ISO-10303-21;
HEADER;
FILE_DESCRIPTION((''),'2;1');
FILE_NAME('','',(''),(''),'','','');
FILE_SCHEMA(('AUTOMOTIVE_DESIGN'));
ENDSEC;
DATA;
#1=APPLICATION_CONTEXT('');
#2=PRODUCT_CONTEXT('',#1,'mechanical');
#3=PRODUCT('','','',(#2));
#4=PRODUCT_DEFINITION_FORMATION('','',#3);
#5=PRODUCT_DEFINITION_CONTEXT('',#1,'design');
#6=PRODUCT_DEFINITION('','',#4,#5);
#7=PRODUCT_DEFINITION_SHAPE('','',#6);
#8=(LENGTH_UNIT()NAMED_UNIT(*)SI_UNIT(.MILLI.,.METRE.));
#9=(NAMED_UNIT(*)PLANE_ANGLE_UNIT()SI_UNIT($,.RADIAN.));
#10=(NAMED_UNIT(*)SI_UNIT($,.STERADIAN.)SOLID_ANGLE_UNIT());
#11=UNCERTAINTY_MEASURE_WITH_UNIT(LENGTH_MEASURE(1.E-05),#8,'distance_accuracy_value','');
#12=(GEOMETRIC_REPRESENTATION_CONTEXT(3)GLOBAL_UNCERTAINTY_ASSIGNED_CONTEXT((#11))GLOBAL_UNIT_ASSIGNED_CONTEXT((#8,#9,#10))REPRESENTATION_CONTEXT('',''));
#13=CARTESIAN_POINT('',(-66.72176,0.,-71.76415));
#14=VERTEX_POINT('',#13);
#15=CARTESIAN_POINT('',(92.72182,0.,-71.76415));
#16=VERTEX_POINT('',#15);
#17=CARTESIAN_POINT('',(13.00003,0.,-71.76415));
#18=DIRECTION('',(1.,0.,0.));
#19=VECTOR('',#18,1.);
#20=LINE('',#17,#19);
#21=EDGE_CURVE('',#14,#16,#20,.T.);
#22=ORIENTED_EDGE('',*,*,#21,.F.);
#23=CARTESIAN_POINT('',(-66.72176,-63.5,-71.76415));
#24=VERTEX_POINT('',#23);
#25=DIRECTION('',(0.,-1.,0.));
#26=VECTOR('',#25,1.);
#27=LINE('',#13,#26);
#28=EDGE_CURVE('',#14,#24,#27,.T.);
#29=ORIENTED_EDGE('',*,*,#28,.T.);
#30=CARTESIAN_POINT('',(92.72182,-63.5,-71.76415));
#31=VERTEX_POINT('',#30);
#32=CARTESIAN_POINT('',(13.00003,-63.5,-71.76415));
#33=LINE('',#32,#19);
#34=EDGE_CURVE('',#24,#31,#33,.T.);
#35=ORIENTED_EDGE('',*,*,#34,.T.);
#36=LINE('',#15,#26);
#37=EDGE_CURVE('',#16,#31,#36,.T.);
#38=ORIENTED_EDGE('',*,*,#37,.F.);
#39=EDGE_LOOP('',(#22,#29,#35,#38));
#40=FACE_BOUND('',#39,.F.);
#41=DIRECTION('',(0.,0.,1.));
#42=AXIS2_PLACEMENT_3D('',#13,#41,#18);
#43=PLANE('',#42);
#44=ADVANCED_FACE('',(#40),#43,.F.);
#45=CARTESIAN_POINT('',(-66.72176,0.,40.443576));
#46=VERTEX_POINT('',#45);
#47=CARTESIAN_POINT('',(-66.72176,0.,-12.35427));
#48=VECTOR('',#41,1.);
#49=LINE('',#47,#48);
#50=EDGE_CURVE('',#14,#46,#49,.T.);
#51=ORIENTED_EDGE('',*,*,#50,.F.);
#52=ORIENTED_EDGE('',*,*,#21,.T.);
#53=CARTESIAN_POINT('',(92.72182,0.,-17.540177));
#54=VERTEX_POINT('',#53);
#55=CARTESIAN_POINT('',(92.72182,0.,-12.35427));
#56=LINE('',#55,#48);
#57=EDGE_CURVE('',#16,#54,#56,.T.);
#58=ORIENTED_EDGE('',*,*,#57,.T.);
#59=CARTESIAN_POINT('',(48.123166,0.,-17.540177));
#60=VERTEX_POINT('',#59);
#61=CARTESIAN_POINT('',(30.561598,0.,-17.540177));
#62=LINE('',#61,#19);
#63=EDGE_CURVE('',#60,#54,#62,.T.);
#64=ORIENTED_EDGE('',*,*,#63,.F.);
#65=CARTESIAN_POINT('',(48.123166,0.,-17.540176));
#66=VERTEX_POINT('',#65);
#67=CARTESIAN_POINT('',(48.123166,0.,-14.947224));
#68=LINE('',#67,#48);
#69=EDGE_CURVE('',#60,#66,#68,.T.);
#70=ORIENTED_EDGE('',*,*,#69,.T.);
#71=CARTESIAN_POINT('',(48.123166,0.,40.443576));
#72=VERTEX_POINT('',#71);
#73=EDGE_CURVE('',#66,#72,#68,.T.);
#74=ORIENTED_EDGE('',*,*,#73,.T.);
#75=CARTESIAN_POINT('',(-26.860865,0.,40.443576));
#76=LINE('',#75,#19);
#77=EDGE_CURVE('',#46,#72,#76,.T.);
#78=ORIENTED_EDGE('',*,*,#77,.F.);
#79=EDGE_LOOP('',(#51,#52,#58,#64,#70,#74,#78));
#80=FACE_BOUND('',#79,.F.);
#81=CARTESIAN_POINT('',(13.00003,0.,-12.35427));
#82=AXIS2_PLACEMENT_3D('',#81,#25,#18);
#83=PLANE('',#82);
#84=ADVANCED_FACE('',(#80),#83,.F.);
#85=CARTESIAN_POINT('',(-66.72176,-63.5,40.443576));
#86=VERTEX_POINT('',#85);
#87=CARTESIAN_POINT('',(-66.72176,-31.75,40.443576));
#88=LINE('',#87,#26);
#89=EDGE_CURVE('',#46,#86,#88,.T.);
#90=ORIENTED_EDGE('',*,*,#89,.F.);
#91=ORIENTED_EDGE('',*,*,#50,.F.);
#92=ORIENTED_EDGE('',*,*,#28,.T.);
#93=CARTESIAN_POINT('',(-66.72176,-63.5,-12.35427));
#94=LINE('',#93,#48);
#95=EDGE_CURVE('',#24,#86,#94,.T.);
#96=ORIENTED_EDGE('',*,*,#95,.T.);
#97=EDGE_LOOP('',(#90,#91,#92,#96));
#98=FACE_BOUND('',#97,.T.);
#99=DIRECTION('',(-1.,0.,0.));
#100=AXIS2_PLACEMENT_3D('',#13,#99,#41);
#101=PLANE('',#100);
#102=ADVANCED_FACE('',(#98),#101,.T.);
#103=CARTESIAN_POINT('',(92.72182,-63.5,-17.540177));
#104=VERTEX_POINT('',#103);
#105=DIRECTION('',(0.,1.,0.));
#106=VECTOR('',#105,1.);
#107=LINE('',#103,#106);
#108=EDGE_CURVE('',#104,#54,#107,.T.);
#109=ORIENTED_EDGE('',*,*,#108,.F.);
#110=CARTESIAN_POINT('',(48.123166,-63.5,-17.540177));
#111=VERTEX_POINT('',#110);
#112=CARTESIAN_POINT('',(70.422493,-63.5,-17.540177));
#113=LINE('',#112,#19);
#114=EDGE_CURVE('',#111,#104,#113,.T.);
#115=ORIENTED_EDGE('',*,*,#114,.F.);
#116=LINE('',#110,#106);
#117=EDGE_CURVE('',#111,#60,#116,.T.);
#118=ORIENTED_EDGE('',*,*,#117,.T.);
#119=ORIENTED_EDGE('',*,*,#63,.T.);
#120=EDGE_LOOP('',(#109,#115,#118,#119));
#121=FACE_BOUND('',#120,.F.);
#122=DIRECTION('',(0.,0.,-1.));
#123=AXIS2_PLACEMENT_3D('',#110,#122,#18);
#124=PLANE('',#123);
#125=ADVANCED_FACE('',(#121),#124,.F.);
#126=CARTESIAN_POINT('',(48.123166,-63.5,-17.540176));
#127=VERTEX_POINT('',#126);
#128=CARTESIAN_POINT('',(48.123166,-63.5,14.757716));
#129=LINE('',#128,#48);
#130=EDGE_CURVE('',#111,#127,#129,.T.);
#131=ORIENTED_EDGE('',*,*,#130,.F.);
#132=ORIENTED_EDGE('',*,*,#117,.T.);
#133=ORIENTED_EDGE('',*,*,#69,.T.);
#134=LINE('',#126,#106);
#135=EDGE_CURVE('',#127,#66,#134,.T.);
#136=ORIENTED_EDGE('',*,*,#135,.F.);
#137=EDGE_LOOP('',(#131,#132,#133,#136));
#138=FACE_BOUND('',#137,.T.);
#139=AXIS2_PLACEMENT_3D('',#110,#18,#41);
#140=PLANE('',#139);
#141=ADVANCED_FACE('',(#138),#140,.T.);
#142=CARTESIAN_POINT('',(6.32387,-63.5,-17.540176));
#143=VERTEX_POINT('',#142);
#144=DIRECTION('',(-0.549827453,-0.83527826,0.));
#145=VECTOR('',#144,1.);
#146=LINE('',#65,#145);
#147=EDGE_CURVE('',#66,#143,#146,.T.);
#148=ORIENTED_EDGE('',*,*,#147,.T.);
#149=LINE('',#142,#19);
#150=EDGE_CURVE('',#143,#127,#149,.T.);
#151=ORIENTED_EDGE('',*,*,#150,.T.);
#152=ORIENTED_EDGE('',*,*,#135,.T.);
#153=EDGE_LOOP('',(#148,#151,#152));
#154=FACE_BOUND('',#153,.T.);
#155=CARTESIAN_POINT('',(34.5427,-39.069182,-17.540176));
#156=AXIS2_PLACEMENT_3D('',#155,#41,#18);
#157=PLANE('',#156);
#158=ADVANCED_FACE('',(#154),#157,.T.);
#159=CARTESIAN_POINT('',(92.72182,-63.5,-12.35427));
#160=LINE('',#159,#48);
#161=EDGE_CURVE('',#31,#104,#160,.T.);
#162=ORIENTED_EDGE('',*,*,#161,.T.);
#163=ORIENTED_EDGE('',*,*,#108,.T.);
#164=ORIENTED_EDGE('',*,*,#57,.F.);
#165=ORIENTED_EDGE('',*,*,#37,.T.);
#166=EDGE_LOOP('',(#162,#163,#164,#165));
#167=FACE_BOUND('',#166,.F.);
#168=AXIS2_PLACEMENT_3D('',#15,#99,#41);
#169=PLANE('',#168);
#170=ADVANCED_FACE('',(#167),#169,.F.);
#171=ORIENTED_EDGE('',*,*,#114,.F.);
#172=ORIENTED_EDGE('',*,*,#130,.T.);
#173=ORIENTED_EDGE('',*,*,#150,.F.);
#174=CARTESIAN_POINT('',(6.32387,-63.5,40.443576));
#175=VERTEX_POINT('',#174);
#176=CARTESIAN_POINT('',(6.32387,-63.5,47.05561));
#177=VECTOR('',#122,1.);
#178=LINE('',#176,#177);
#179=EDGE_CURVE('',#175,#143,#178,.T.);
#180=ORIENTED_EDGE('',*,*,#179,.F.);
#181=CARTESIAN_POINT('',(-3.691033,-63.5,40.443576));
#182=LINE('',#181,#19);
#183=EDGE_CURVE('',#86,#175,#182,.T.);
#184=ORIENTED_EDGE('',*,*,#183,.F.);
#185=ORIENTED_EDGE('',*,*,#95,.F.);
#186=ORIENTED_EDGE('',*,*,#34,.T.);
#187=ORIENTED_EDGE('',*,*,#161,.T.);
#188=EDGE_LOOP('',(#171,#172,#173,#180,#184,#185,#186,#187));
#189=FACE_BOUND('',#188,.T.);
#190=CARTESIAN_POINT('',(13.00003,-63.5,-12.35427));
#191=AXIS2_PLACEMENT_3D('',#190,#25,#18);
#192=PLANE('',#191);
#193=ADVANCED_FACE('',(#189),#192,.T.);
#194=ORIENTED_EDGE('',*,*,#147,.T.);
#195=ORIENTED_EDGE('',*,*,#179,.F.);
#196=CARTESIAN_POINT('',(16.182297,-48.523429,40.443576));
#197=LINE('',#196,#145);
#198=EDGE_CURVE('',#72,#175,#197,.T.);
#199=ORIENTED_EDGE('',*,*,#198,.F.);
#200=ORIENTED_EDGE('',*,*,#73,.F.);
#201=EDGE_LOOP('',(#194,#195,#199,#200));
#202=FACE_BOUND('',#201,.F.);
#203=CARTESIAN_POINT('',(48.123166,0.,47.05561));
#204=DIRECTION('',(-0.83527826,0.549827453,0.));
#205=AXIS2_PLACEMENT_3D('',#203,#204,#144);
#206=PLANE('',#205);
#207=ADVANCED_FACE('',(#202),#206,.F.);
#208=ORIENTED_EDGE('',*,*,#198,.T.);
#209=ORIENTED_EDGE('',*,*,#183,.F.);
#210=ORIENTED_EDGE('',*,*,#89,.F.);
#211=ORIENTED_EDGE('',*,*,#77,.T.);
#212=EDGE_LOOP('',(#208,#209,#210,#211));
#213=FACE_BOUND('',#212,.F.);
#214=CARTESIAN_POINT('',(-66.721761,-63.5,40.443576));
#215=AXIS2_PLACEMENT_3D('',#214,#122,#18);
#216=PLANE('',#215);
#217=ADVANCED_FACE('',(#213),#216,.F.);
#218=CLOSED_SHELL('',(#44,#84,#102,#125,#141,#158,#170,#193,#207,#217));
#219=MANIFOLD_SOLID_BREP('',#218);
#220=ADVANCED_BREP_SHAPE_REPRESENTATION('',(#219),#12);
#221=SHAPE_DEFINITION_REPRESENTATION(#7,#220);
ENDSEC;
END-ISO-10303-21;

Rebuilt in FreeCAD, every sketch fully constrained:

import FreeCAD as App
import Part
import Sketcher

V = App.Vector
Q = App.Units.Quantity

doc = App.newDocument("Part")
body = doc.addObject("PartDesign::Body", "Body")

# Sketch on XZ plane
sketch1 = doc.addObject("Sketcher::SketchObject", "Sketch")
body.addObject(sketch1)
sketch1.AttachmentSupport = (doc.XZ_Plane, [""])
sketch1.MapMode = "FlatFace"
sketch1.addGeometry(Part.LineSegment(V(-67, 47, 0), V(-67, -72, 0)), False)
sketch1.addGeometry(Part.LineSegment(V(-67, -72, 0), V(93, -72, 0)), False)
sketch1.addGeometry(Part.LineSegment(V(93, -72, 0), V(93, 47, 0)), False)
sketch1.addGeometry(Part.LineSegment(V(93, 47, 0), V(-67, 47, 0)), False)
sketch1.addConstraint(Sketcher.Constraint("Coincident", 0, 2, 1, 1))
sketch1.addConstraint(Sketcher.Constraint("Coincident", 1, 2, 2, 1))
sketch1.addConstraint(Sketcher.Constraint("Coincident", 2, 2, 3, 1))
sketch1.addConstraint(Sketcher.Constraint("Coincident", 3, 2, 0, 1))
sketch1.addConstraint(Sketcher.Constraint("Vertical", 0))
sketch1.addConstraint(Sketcher.Constraint("Horizontal", 1))
sketch1.addConstraint(Sketcher.Constraint("Vertical", 2))
sketch1.addConstraint(Sketcher.Constraint("Horizontal", 3))
sketch1.addConstraint(Sketcher.Constraint("DistanceX", 1, 1, 1, 2, 159.44358))
sketch1.addConstraint(Sketcher.Constraint("DistanceY", 0, 2, 0, 1, 118.819759))
sketch1.addConstraint(Sketcher.Constraint("DistanceX", 0, 2, -1, 1, 66.72176))
sketch1.addConstraint(Sketcher.Constraint("DistanceY", 0, 2, -1, 1, 71.76415))
pad1 = doc.addObject("PartDesign::Pad", "Pad")
body.addObject(pad1)
pad1.Profile = sketch1
pad1.Length = Q("2.5 in")

# Sketch on XZ plane
sketch2 = doc.addObject("Sketcher::SketchObject", "Sketch001")
body.addObject(sketch2)
sketch2.AttachmentSupport = (doc.XZ_Plane, [""])
sketch2.MapMode = "FlatFace"
sketch2.AttachmentOffset = App.Placement(V(0, 0, 2.5 * 25.4), App.Rotation())
sketch2.addGeometry(Part.LineSegment(V(48, 47, 0), V(48, -18, 0)), False)
sketch2.addGeometry(Part.LineSegment(V(48, -18, 0), V(93, -18, 0)), False)
sketch2.addGeometry(Part.LineSegment(V(93, -18, 0), V(93, 47, 0)), False)
sketch2.addGeometry(Part.LineSegment(V(93, 47, 0), V(48, 47, 0)), False)
sketch2.addConstraint(Sketcher.Constraint("Coincident", 0, 2, 1, 1))
sketch2.addConstraint(Sketcher.Constraint("Coincident", 1, 2, 2, 1))
sketch2.addConstraint(Sketcher.Constraint("Coincident", 2, 2, 3, 1))
sketch2.addConstraint(Sketcher.Constraint("Coincident", 3, 2, 0, 1))
sketch2.addConstraint(Sketcher.Constraint("Vertical", 0))
sketch2.addConstraint(Sketcher.Constraint("Horizontal", 1))
sketch2.addConstraint(Sketcher.Constraint("Vertical", 2))
sketch2.addConstraint(Sketcher.Constraint("Horizontal", 3))
sketch2.addConstraint(Sketcher.Constraint("DistanceX", 1, 1, 1, 2, 44.598654))
sketch2.addConstraint(Sketcher.Constraint("DistanceY", 0, 2, 0, 1, 64.595787))
sketch2.addConstraint(Sketcher.Constraint("DistanceX", -1, 1, 1, 2, 92.72182))
sketch2.addConstraint(Sketcher.Constraint("DistanceY", -1, 1, 2, 2, 47.05561))
pocket1 = doc.addObject("PartDesign::Pocket", "Pocket")
body.addObject(pocket1)
pocket1.Profile = sketch2
pocket1.Length = Q("2.63 in")

# Sketch on XY plane
sketch3 = doc.addObject("Sketcher::SketchObject", "Sketch002")
body.addObject(sketch3)
sketch3.AttachmentSupport = (doc.XY_Plane, [""])
sketch3.MapMode = "FlatFace"
sketch3.AttachmentOffset = App.Placement(V(0, 0, 47.05561), App.Rotation())
sketch3.addGeometry(Part.LineSegment(V(48, -64, 0), V(48, 0, 0)), False)
sketch3.addGeometry(Part.LineSegment(V(48, 0, 0), V(6, -64, 0)), False)
sketch3.addGeometry(Part.LineSegment(V(6, -64, 0), V(48, -64, 0)), False)
sketch3.addConstraint(Sketcher.Constraint("Coincident", 0, 2, 1, 1))
sketch3.addConstraint(Sketcher.Constraint("Coincident", 1, 2, 2, 1))
sketch3.addConstraint(Sketcher.Constraint("Coincident", 2, 2, 0, 1))
sketch3.addConstraint(Sketcher.Constraint("Vertical", 0))
sketch3.addConstraint(Sketcher.Constraint("Horizontal", 2))
sketch3.addConstraint(Sketcher.Constraint("PointOnObject", 0, 2, -1))
sketch3.addConstraint(Sketcher.Constraint("DistanceY", 0, 1, 0, 2, Q("2.5 in")))
sketch3.addConstraint(Sketcher.Constraint("Distance", 1, 76.02257))
sketch3.addConstraint(Sketcher.Constraint("DistanceX", -1, 1, 1, 2, 6.32387))
pocket2 = doc.addObject("PartDesign::Pocket", "Pocket001")
body.addObject(pocket2)
pocket2.Profile = sketch3
pocket2.Length = 64.595786

# Sketch on XZ plane
sketch4 = doc.addObject("Sketcher::SketchObject", "Sketch003")
body.addObject(sketch4)
sketch4.AttachmentSupport = (doc.XZ_Plane, [""])
sketch4.MapMode = "FlatFace"
sketch4.AttachmentOffset = App.Placement(V(0, 0, 2.5 * 25.4), App.Rotation())
sketch4.addGeometry(Part.LineSegment(V(-67, 47, 0), V(-67, 40, 0)), False)
sketch4.addGeometry(Part.LineSegment(V(-67, 40, 0), V(59, 40, 0)), False)
sketch4.addGeometry(Part.LineSegment(V(59, 40, 0), V(59, 47, 0)), False)
sketch4.addGeometry(Part.LineSegment(V(59, 47, 0), V(-67, 47, 0)), False)
sketch4.addConstraint(Sketcher.Constraint("Coincident", 0, 2, 1, 1))
sketch4.addConstraint(Sketcher.Constraint("Coincident", 1, 2, 2, 1))
sketch4.addConstraint(Sketcher.Constraint("Coincident", 2, 2, 3, 1))
sketch4.addConstraint(Sketcher.Constraint("Coincident", 3, 2, 0, 1))
sketch4.addConstraint(Sketcher.Constraint("Vertical", 0))
sketch4.addConstraint(Sketcher.Constraint("Horizontal", 1))
sketch4.addConstraint(Sketcher.Constraint("Vertical", 2))
sketch4.addConstraint(Sketcher.Constraint("Horizontal", 3))
sketch4.addConstraint(Sketcher.Constraint("DistanceX", 1, 1, 1, 2, 126.061455))
sketch4.addConstraint(Sketcher.Constraint("DistanceY", 0, 2, 0, 1, 6.612033))
sketch4.addConstraint(Sketcher.Constraint("DistanceX", 0, 2, -1, 1, 66.721761))
sketch4.addConstraint(Sketcher.Constraint("DistanceY", -1, 1, 2, 2, 47.05561))
pocket3 = doc.addObject("PartDesign::Pocket", "Pocket002")
body.addObject(pocket3)
pocket3.Profile = sketch4
pocket3.Length = Q("2.79 in")

doc.recompute()
